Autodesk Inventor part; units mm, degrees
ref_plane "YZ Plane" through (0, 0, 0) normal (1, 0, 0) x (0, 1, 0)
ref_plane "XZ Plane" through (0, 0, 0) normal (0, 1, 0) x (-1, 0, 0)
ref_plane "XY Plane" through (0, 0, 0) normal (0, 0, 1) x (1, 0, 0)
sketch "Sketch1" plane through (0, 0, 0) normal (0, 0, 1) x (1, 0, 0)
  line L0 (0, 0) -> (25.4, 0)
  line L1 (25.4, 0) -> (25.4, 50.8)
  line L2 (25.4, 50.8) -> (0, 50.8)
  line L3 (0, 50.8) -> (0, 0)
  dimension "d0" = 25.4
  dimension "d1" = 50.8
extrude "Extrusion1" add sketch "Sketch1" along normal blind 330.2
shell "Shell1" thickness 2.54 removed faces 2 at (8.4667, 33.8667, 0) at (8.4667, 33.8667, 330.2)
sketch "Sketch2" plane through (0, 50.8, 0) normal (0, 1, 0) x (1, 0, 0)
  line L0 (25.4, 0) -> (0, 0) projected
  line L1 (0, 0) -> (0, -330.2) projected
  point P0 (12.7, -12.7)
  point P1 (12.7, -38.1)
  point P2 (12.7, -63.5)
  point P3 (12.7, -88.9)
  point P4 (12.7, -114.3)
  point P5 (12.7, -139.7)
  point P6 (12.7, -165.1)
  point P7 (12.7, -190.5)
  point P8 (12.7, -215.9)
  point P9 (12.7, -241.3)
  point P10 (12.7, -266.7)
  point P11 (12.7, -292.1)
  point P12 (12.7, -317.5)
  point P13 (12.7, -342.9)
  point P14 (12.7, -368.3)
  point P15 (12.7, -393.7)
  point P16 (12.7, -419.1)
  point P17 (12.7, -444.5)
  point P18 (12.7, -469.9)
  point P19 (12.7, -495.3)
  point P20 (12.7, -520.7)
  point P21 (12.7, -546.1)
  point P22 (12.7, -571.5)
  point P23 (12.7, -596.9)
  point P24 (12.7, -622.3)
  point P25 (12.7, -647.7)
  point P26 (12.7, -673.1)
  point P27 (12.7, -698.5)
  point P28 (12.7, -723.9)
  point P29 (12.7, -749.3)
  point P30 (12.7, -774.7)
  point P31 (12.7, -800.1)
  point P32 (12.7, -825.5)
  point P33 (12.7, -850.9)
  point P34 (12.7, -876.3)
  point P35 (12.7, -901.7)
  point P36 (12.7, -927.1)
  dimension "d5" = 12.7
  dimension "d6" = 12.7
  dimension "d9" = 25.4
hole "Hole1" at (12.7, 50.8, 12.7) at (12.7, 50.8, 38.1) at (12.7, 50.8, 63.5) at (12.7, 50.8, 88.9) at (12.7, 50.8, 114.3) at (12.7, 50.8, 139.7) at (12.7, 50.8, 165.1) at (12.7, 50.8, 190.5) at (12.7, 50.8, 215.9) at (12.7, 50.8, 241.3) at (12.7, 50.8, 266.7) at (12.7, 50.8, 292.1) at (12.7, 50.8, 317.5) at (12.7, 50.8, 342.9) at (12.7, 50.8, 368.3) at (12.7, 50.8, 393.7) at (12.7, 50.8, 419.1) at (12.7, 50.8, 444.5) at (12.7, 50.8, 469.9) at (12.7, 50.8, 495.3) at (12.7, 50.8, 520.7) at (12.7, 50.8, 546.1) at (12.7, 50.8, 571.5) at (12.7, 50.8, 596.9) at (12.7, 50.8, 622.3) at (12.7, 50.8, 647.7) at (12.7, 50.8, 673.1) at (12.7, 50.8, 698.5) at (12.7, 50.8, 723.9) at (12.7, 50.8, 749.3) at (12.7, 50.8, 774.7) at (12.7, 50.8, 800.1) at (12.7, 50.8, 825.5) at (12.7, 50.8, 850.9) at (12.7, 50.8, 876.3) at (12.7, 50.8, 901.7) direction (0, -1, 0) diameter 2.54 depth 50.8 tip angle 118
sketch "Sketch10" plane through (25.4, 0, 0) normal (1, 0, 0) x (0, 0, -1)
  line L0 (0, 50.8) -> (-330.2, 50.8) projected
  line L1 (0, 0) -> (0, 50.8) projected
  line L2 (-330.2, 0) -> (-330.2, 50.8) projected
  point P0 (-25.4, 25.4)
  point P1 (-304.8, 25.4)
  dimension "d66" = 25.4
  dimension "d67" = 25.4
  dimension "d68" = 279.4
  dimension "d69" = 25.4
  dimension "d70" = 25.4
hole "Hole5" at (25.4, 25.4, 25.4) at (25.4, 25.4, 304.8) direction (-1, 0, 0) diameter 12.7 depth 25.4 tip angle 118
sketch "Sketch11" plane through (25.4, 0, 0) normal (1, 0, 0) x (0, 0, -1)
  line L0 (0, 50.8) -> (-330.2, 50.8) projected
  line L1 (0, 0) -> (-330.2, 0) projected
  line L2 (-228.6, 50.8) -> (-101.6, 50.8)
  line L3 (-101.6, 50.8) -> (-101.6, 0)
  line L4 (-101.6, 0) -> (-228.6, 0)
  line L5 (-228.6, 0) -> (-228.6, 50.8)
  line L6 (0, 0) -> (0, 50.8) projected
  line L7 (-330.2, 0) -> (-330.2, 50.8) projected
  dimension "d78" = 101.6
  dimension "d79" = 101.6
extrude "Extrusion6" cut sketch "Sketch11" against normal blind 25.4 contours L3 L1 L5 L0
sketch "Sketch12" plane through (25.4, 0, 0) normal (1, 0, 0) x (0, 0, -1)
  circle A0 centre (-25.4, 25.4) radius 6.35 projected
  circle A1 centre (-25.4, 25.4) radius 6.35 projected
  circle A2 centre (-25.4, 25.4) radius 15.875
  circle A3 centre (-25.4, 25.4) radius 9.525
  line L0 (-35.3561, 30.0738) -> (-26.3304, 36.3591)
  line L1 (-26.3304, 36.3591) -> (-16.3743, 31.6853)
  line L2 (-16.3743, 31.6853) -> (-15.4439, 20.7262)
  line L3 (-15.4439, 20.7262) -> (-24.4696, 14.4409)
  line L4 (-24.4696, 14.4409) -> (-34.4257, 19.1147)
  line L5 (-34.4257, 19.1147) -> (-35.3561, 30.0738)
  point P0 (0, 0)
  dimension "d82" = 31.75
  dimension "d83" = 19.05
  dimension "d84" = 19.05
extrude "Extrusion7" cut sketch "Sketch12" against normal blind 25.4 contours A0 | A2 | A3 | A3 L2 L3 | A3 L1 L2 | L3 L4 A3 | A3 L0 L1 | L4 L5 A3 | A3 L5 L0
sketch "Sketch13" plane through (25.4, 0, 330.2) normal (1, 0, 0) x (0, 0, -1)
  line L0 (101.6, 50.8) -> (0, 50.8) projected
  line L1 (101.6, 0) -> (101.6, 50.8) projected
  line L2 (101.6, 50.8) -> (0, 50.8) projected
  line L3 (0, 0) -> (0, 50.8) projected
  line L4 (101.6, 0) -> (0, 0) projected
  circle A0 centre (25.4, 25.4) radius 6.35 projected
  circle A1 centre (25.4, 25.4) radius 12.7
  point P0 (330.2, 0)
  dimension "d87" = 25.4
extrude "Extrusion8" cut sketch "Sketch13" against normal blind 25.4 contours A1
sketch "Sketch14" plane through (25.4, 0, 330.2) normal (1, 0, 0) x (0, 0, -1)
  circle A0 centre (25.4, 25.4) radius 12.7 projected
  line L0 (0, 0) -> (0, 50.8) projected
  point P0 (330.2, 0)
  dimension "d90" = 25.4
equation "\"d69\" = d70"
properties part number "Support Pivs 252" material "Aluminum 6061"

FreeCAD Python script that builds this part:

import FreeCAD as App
import Part
import Sketcher
Q = App.Units.Quantity


def faces_at(feature, points):
    """Names of the faces that lie closest to the given points."""
    faces = feature.Shape.Faces
    near = lambda p: min(range(len(faces)), key=lambda i: faces[i].distToShape(Part.Vertex(*p))[0])
    return sorted({f"Face{near(p) + 1}" for p in points})


def add_polygon(sketch, points):
    """Adds a closed chain of lines whose ends are joined by coincident constraints."""
    first, n = sketch.GeometryCount, len(points)
    for a, b in zip(points, points[1:] + points[:1]):
        sketch.addGeometry(Part.LineSegment(App.Vector(*a, 0), App.Vector(*b, 0)), False)
    for i in range(n):
        sketch.addConstraint(Sketcher.Constraint("Coincident", first + i, 2, first + (i + 1) % n, 1))

doc = App.newDocument("Part")
body = doc.addObject("PartDesign::Body", "Body")
body.AllowCompound = True

# Sketch on XY plane
sketch1 = body.newObject("Sketcher::SketchObject", "Sketch")
sketch1.AttachmentSupport = (doc.getObject("XY_Plane"), [""])
sketch1.MapMode = "FlatFace"
add_polygon(sketch1, [(0, 51), (0, 0), (25, 0), (25, 51)])  # lines 0-3
sketch1.addConstraint([
    Sketcher.Constraint("Vertical", 0),
    Sketcher.Constraint("Horizontal", 1),
    Sketcher.Constraint("Vertical", 2),
    Sketcher.Constraint("Horizontal", 3),
    Sketcher.Constraint("Coincident", 0, 2, -1, 1),
    Sketcher.Constraint("DistanceX", 1, 1, 1, 2, Q("1 in")),
    Sketcher.Constraint("DistanceY", 0, 2, 0, 1, Q("2 in")),
])
pad1 = body.newObject("PartDesign::Pad", "Pad")
pad1.Profile = sketch1
pad1.Length = Q("13 in")
doc.recompute()

thickness = body.newObject("PartDesign::Thickness", "Thickness")
thickness.Base = (pad1, faces_at(pad1, [(8.467, 33.867, 0), (8.467, 33.867, 330.2)]))
thickness.Value = Q("0.1 in")
thickness.Reversed = True
thickness.Join = "Intersection"

# Sketch on XZ plane
sketch2 = body.newObject("Sketcher::SketchObject", "Sketch001")
sketch2.AttachmentSupport = (doc.getObject("XZ_Plane"), [""])
sketch2.MapMode = "FlatFace"
sketch2.AttachmentOffset = App.Placement(App.Vector(0, 0, -2 * 25.4), App.Rotation())
sketch2.addGeometry([
    Part.Circle(App.Vector(12.7, 12.7, 0), App.Vector(0, 0, 1), 1.3),  # 0
    Part.Circle(App.Vector(12.7, 38.1, 0), App.Vector(0, 0, 1), 1.3),  # 1
    Part.Circle(App.Vector(12.7, 63.5, 0), App.Vector(0, 0, 1), 1.3),  # 2
    Part.Circle(App.Vector(12.7, 88.9, 0), App.Vector(0, 0, 1), 1.3),  # 3
    Part.Circle(App.Vector(12.7, 114.3, 0), App.Vector(0, 0, 1), 1.3),  # 4
    Part.Circle(App.Vector(12.7, 139.7, 0), App.Vector(0, 0, 1), 1.3),  # 5
    Part.Circle(App.Vector(12.7, 165.1, 0), App.Vector(0, 0, 1), 1.3),  # 6
    Part.Circle(App.Vector(12.7, 190.5, 0), App.Vector(0, 0, 1), 1.3),  # 7
    Part.Circle(App.Vector(12.7, 215.9, 0), App.Vector(0, 0, 1), 1.3),  # 8
    Part.Circle(App.Vector(12.7, 241.3, 0), App.Vector(0, 0, 1), 1.3),  # 9
    Part.Circle(App.Vector(12.7, 266.7, 0), App.Vector(0, 0, 1), 1.3),  # 10
    Part.Circle(App.Vector(12.7, 292.1, 0), App.Vector(0, 0, 1), 1.3),  # 11
    Part.Circle(App.Vector(12.7, 317.5, 0), App.Vector(0, 0, 1), 1.3),  # 12
    Part.Circle(App.Vector(12.7, 342.9, 0), App.Vector(0, 0, 1), 1.3),  # 13
    Part.Circle(App.Vector(12.7, 368.3, 0), App.Vector(0, 0, 1), 1.3),  # 14
    Part.Circle(App.Vector(12.7, 393.7, 0), App.Vector(0, 0, 1), 1.3),  # 15
    Part.Circle(App.Vector(12.7, 419.1, 0), App.Vector(0, 0, 1), 1.3),  # 16
    Part.Circle(App.Vector(12.7, 444.5, 0), App.Vector(0, 0, 1), 1.3),  # 17
    Part.Circle(App.Vector(12.7, 469.9, 0), App.Vector(0, 0, 1), 1.3),  # 18
    Part.Circle(App.Vector(12.7, 495.3, 0), App.Vector(0, 0, 1), 1.3),  # 19
    Part.Circle(App.Vector(12.7, 520.7, 0), App.Vector(0, 0, 1), 1.3),  # 20
    Part.Circle(App.Vector(12.7, 546.1, 0), App.Vector(0, 0, 1), 1.3),  # 21
    Part.Circle(App.Vector(12.7, 571.5, 0), App.Vector(0, 0, 1), 1.3),  # 22
    Part.Circle(App.Vector(12.7, 596.9, 0), App.Vector(0, 0, 1), 1.3),  # 23
    Part.Circle(App.Vector(12.7, 622.3, 0), App.Vector(0, 0, 1), 1.3),  # 24
    Part.Circle(App.Vector(12.7, 647.7, 0), App.Vector(0, 0, 1), 1.3),  # 25
    Part.Circle(App.Vector(12.7, 673.1, 0), App.Vector(0, 0, 1), 1.3),  # 26
    Part.Circle(App.Vector(12.7, 698.5, 0), App.Vector(0, 0, 1), 1.3),  # 27
    Part.Circle(App.Vector(12.7, 723.9, 0), App.Vector(0, 0, 1), 1.3),  # 28
    Part.Circle(App.Vector(12.7, 749.3, 0), App.Vector(0, 0, 1), 1.3),  # 29
    Part.Circle(App.Vector(12.7, 774.7, 0), App.Vector(0, 0, 1), 1.3),  # 30
    Part.Circle(App.Vector(12.7, 800.1, 0), App.Vector(0, 0, 1), 1.3),  # 31
    Part.Circle(App.Vector(12.7, 825.5, 0), App.Vector(0, 0, 1), 1.3),  # 32
    Part.Circle(App.Vector(12.7, 850.9, 0), App.Vector(0, 0, 1), 1.3),  # 33
    Part.Circle(App.Vector(12.7, 876.3, 0), App.Vector(0, 0, 1), 1.3),  # 34
    Part.Circle(App.Vector(12.7, 901.7, 0), App.Vector(0, 0, 1), 1.3),  # 35
], False)
sketch2.addConstraint([
    Sketcher.Constraint("Equal", 0, 1),
    Sketcher.Constraint("Equal", 1, 2),
    Sketcher.Constraint("Equal", 2, 3),
    Sketcher.Constraint("Equal", 3, 4),
    Sketcher.Constraint("Equal", 4, 5),
    Sketcher.Constraint("Equal", 5, 6),
    Sketcher.Constraint("Equal", 6, 7),
    Sketcher.Constraint("Equal", 7, 8),
    Sketcher.Constraint("Equal", 8, 9),
    Sketcher.Constraint("Equal", 9, 10),
    Sketcher.Constraint("Equal", 10, 11),
    Sketcher.Constraint("Equal", 11, 12),
    Sketcher.Constraint("Equal", 12, 13),
    Sketcher.Constraint("Equal", 13, 14),
    Sketcher.Constraint("Equal", 14, 15),
    Sketcher.Constraint("Equal", 15, 16),
    Sketcher.Constraint("Equal", 16, 17),
    Sketcher.Constraint("Equal", 17, 18),
    Sketcher.Constraint("Equal", 18, 19),
    Sketcher.Constraint("Equal", 19, 20),
    Sketcher.Constraint("Equal", 20, 21),
    Sketcher.Constraint("Equal", 21, 22),
    Sketcher.Constraint("Equal", 22, 23),
    Sketcher.Constraint("Equal", 23, 24),
    Sketcher.Constraint("Equal", 24, 25),
    Sketcher.Constraint("Equal", 25, 26),
    Sketcher.Constraint("Equal", 26, 27),
    Sketcher.Constraint("Equal", 27, 28),
    Sketcher.Constraint("Equal", 28, 29),
    Sketcher.Constraint("Equal", 29, 30),
    Sketcher.Constraint("Equal", 30, 31),
    Sketcher.Constraint("Equal", 31, 32),
    Sketcher.Constraint("Equal", 32, 33),
    Sketcher.Constraint("Equal", 33, 34),
    Sketcher.Constraint("Equal", 34, 35),
    Sketcher.Constraint("Vertical", 0, 3, 1, 3),
    Sketcher.Constraint("Vertical", 1, 3, 2, 3),
    Sketcher.Constraint("Vertical", 2, 3, 3, 3),
    Sketcher.Constraint("Vertical", 3, 3, 4, 3),
    Sketcher.Constraint("Vertical", 4, 3, 5, 3),
    Sketcher.Constraint("Vertical", 5, 3, 6, 3),
    Sketcher.Constraint("Vertical", 6, 3, 7, 3),
    Sketcher.Constraint("Vertical", 7, 3, 8, 3),
    Sketcher.Constraint("Vertical", 8, 3, 9, 3),
    Sketcher.Constraint("Vertical", 9, 3, 10, 3),
    Sketcher.Constraint("Vertical", 10, 3, 11, 3),
    Sketcher.Constraint("Vertical", 11, 3, 12, 3),
    Sketcher.Constraint("Vertical", 12, 3, 13, 3),
    Sketcher.Constraint("Vertical", 13, 3, 14, 3),
    Sketcher.Constraint("Vertical", 14, 3, 15, 3),
    Sketcher.Constraint("Vertical", 15, 3, 16, 3),
    Sketcher.Constraint("Vertical", 16, 3, 17, 3),
    Sketcher.Constraint("Vertical", 17, 3, 18, 3),
    Sketcher.Constraint("Vertical", 18, 3, 19, 3),
    Sketcher.Constraint("Vertical", 19, 3, 20, 3),
    Sketcher.Constraint("Vertical", 20, 3, 21, 3),
    Sketcher.Constraint("Vertical", 21, 3, 22, 3),
    Sketcher.Constraint("Vertical", 22, 3, 23, 3),
    Sketcher.Constraint("Vertical", 23, 3, 24, 3),
    Sketcher.Constraint("Vertical", 24, 3, 25, 3),
    Sketcher.Constraint("Vertical", 25, 3, 26, 3),
    Sketcher.Constraint("Vertical", 26, 3, 27, 3),
    Sketcher.Constraint("Vertical", 27, 3, 28, 3),
    Sketcher.Constraint("Vertical", 28, 3, 29, 3),
    Sketcher.Constraint("Vertical", 29, 3, 30, 3),
    Sketcher.Constraint("Vertical", 30, 3, 31, 3),
    Sketcher.Constraint("Vertical", 31, 3, 32, 3),
    Sketcher.Constraint("Vertical", 32, 3, 33, 3),
    Sketcher.Constraint("Vertical", 33, 3, 34, 3),
    Sketcher.Constraint("Vertical", 34, 3, 35, 3),
    Sketcher.Constraint("Diameter", 0, Q("0.1 in")),
    Sketcher.Constraint("DistanceY", 0, 3, 1, 3, Q("1 in")),
    Sketcher.Constraint("DistanceY", 1, 3, 2, 3, Q("1 in")),
    Sketcher.Constraint("DistanceY", 2, 3, 3, 3, Q("1 in")),
    Sketcher.Constraint("DistanceY", 3, 3, 4, 3, Q("1 in")),
    Sketcher.Constraint("DistanceY", 4, 3, 5, 3, Q("1 in")),
    Sketcher.Constraint("DistanceY", 5, 3, 6, 3, Q("1 in")),
    Sketcher.Constraint("DistanceY", 6, 3, 7, 3, Q("1 in")),
    Sketcher.Constraint("DistanceY", 7, 3, 8, 3, Q("1 in")),
    Sketcher.Constraint("DistanceY", 8, 3, 9, 3, Q("1 in")),
    Sketcher.Constraint("DistanceY", 9, 3, 10, 3, Q("1 in")),
    Sketcher.Constraint("DistanceY", 10, 3, 11, 3, Q("1 in")),
    Sketcher.Constraint("DistanceY", 11, 3, 12, 3, Q("1 in")),
    Sketcher.Constraint("DistanceY", 12, 3, 13, 3, Q("1 in")),
    Sketcher.Constraint("DistanceY", 13, 3, 14, 3, Q("1 in")),
    Sketcher.Constraint("DistanceY", 14, 3, 15, 3, Q("1 in")),
    Sketcher.Constraint("DistanceY", 15, 3, 16, 3, Q("1 in")),
    Sketcher.Constraint("DistanceY", 16, 3, 17, 3, Q("1 in")),
    Sketcher.Constraint("DistanceY", 17, 3, 18, 3, Q("1 in")),
    Sketcher.Constraint("DistanceY", 18, 3, 19, 3, Q("1 in")),
    Sketcher.Constraint("DistanceY", 19, 3, 20, 3, Q("1 in")),
    Sketcher.Constraint("DistanceY", 20, 3, 21, 3, Q("1 in")),
    Sketcher.Constraint("DistanceY", 21, 3, 22, 3, Q("1 in")),
    Sketcher.Constraint("DistanceY", 22, 3, 23, 3, Q("1 in")),
    Sketcher.Constraint("DistanceY", 23, 3, 24, 3, Q("1 in")),
    Sketcher.Constraint("DistanceY", 24, 3, 25, 3, Q("1 in")),
    Sketcher.Constraint("DistanceY", 25, 3, 26, 3, Q("1 in")),
    Sketcher.Constraint("DistanceY", 26, 3, 27, 3, Q("1 in")),
    Sketcher.Constraint("DistanceY", 27, 3, 28, 3, Q("1 in")),
    Sketcher.Constraint("DistanceY", 28, 3, 29, 3, Q("1 in")),
    Sketcher.Constraint("DistanceY", 29, 3, 30, 3, Q("1 in")),
    Sketcher.Constraint("DistanceY", 30, 3, 31, 3, Q("1 in")),
    Sketcher.Constraint("DistanceY", 31, 3, 32, 3, Q("1 in")),
    Sketcher.Constraint("DistanceY", 32, 3, 33, 3, Q("1 in")),
    Sketcher.Constraint("DistanceY", 33, 3, 34, 3, Q("1 in")),
    Sketcher.Constraint("DistanceY", 34, 3, 35, 3, Q("1 in")),
    Sketcher.Constraint("DistanceX", -1, 1, 0, 3, Q("0.5 in")),
    Sketcher.Constraint("DistanceY", -1, 1, 0, 3, Q("0.5 in")),
])
doc.recompute()
hole = body.newObject("PartDesign::Hole", "Hole")
hole.Profile = sketch2
hole.ThreadType = "None"
hole.Diameter = Q("0.1 in")
hole.DepthType = "Dimension"
hole.Depth = Q("2 in")
hole.DrillPoint = "Angled"
hole.DrillPointAngle = 118
hole.Reversed = True

# Sketch on YZ plane
sketch3 = body.newObject("Sketcher::SketchObject", "Sketch002")
sketch3.AttachmentSupport = (doc.getObject("YZ_Plane"), [""])
sketch3.MapMode = "FlatFace"
sketch3.AttachmentOffset = App.Placement(App.Vector(0, 0, 1 * 25.4), App.Rotation())
sketch3.addGeometry([
    Part.Circle(App.Vector(25, 25, 0), App.Vector(0, 0, 1), 6),
    Part.Circle(App.Vector(25, 305, 0), App.Vector(0, 0, 1), 6),
], False)
sketch3.addConstraint([
    Sketcher.Constraint("Equal", 0, 1),
    Sketcher.Constraint("Vertical", 0, 3, 1, 3),
    Sketcher.Constraint("Diameter", 0, Q("0.5 in")),
    Sketcher.Constraint("DistanceX", -1, 1, 0, 3, Q("1 in")),
    Sketcher.Constraint("DistanceY", -1, 1, 0, 3, Q("1 in")),
    Sketcher.Constraint("DistanceY", -1, 1, 1, 3, Q("12 in")),
])
doc.recompute()
hole2 = body.newObject("PartDesign::Hole", "Hole001")
hole2.Profile = sketch3
hole2.ThreadType = "None"
hole2.Diameter = Q("0.5 in")
hole2.DepthType = "Dimension"
hole2.Depth = Q("1 in")
hole2.DrillPoint = "Angled"
hole2.DrillPointAngle = 118

# Sketch on YZ plane
sketch4 = body.newObject("Sketcher::SketchObject", "Sketch003")
sketch4.AttachmentSupport = (doc.getObject("YZ_Plane"), [""])
sketch4.MapMode = "FlatFace"
sketch4.AttachmentOffset = App.Placement(App.Vector(0, 0, 1 * 25.4), App.Rotation())
add_polygon(sketch4, [(0, 102), (51, 102), (51, 229), (0, 229)])  # lines 0-3
sketch4.addConstraint([
    Sketcher.Constraint("Horizontal", 0),
    Sketcher.Constraint("Vertical", 1),
    Sketcher.Constraint("Horizontal", 2),
    Sketcher.Constraint("Vertical", 3),
    Sketcher.Constraint("PointOnObject", 2, 2, -2),
    Sketcher.Constraint("DistanceY", -1, 1, 0, 2, Q("4 in")),
    Sketcher.Constraint("DistanceX", 0, 1, 0, 2, Q("2 in")),
    Sketcher.Constraint("DistanceY", 1, 1, 1, 2, Q("5 in")),
])
pocket1 = body.newObject("PartDesign::Pocket", "Pocket")
pocket1.Profile = sketch4
pocket1.Length = Q("1 in")

# Sketch on YZ plane
sketch5 = body.newObject("Sketcher::SketchObject", "Sketch004")
sketch5.AttachmentSupport = (doc.getObject("YZ_Plane"), [""])
sketch5.MapMode = "FlatFace"
sketch5.AttachmentOffset = App.Placement(App.Vector(0, 0, 1 * 25.4), App.Rotation())
sketch5.addGeometry(Part.Circle(App.Vector(25, 25, 0), App.Vector(0, 0, 1), 16), False)
sketch5.addConstraint([
    Sketcher.Constraint("Diameter", 0, Q("1.25 in")),
    Sketcher.Constraint("DistanceX", -1, 1, 0, 3, Q("1 in")),
    Sketcher.Constraint("DistanceY", -1, 1, 0, 3, Q("1 in")),
])
pocket2 = body.newObject("PartDesign::Pocket", "Pocket001")
pocket2.Profile = sketch5
pocket2.Length = Q("1 in")

# Sketch on YZ plane
sketch6 = body.newObject("Sketcher::SketchObject", "Sketch005")
sketch6.AttachmentSupport = (doc.getObject("YZ_Plane"), [""])
sketch6.MapMode = "FlatFace"
sketch6.AttachmentOffset = App.Placement(App.Vector(0, 0, 1 * 25.4), App.Rotation())
sketch6.addGeometry([
    Part.Circle(App.Vector(25, 305, 0), App.Vector(0, 0, 1), 13),
    Part.Circle(App.Vector(25, 305, 0), App.Vector(0, 0, 1), 6),
], False)
sketch6.addConstraint([
    Sketcher.Constraint("Coincident", 1, 3, 0, 3),
    Sketcher.Constraint("Diameter", 0, Q("1 in")),
    Sketcher.Constraint("DistanceX", -1, 1, 0, 3, Q("1 in")),
    Sketcher.Constraint("Diameter", 1, Q("0.5 in")),
    Sketcher.Constraint("DistanceY", -1, 1, 0, 3, Q("12 in")),
])
pocket3 = body.newObject("PartDesign::Pocket", "Pocket002")
pocket3.Profile = sketch6
pocket3.Length = Q("1 in")

doc.recompute()
